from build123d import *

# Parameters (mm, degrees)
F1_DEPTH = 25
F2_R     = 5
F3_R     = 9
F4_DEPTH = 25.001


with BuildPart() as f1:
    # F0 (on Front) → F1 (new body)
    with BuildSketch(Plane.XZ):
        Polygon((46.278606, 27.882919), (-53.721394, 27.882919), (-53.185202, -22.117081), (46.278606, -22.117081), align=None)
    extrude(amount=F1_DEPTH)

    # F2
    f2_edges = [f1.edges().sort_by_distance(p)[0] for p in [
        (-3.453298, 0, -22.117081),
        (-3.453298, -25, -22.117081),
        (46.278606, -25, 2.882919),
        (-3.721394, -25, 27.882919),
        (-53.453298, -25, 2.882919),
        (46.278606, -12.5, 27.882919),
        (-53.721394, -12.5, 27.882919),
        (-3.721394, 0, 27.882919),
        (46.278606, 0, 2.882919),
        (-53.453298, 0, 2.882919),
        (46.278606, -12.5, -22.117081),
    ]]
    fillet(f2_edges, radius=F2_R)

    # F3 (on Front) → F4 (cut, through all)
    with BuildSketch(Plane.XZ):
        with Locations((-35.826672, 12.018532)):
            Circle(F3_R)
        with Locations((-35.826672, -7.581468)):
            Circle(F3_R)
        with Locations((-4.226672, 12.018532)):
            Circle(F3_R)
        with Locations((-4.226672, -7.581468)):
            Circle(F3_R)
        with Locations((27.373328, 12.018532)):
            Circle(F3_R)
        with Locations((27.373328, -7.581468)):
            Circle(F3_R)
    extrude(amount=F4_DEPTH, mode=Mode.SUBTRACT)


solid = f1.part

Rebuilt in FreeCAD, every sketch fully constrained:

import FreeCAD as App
import Part
import Sketcher

V = App.Vector
Q = App.Units.Quantity


def edges_at(feature, points):
    """Names of the edges that pass closest to the given points."""
    edges = feature.Shape.Edges
    near = lambda p: min(range(len(edges)), key=lambda i: edges[i].distToShape(Part.Vertex(*p))[0])
    return sorted({f"Edge{near(p) + 1}" for p in points})

doc = App.newDocument("Part")
body = doc.addObject("PartDesign::Body", "Body")

# Sketch on XZ plane
sketch1 = body.newObject("Sketcher::SketchObject", "Sketch")
sketch1.AttachmentSupport = (doc.getObject("XZ_Plane"), [""])
sketch1.MapMode = "FlatFace"
sketch1.addGeometry([
    Part.LineSegment(V(46, 28, 0), V(-54, 28, 0)),
    Part.LineSegment(V(-54, 28, 0), V(-53, -22, 0)),
    Part.LineSegment(V(-53, -22, 0), V(46, -22, 0)),
    Part.LineSegment(V(46, -22, 0), V(46, 28, 0)),
], False)
sketch1.addConstraint([
    Sketcher.Constraint("Coincident", 0, 2, 1, 1),
    Sketcher.Constraint("Coincident", 1, 2, 2, 1),
    Sketcher.Constraint("Coincident", 2, 2, 3, 1),
    Sketcher.Constraint("Coincident", 3, 2, 0, 1),
    Sketcher.Constraint("Horizontal", 0),
    Sketcher.Constraint("Horizontal", 2),
    Sketcher.Constraint("Vertical", 3),
    Sketcher.Constraint("DistanceX", 0, 2, 0, 1, Q("100 mm")),
    Sketcher.Constraint("DistanceY", 3, 1, 3, 2, Q("50 mm")),
    Sketcher.Constraint("DistanceX", 2, 1, 2, 2, Q("99.463808 mm")),
    Sketcher.Constraint("DistanceX", 1, 2, -1, 1, Q("53.185202 mm")),
    Sketcher.Constraint("DistanceY", -1, 1, 0, 2, Q("27.882919 mm")),
])
pad1 = body.newObject("PartDesign::Pad", "Pad")
pad1.Profile = sketch1
pad1.Length = 25
doc.recompute()

fillet = body.newObject("PartDesign::Fillet", "Fillet")
fillet.Base = (pad1, edges_at(pad1, [
    (-3.453, 0, -22.117),
    (-3.453, -25, -22.117),
    (46.279, -25, 2.883),
    (-3.721, -25, 27.883),
    (-53.453, -25, 2.883),
    (46.279, -12.5, 27.883),
    (-53.721, -12.5, 27.883),
    (-3.721, 0, 27.883),
    (46.279, 0, 2.883),
    (-53.453, 0, 2.883),
    (46.279, -12.5, -22.117),
]))
fillet.Radius = 5

# Sketch on XZ plane
sketch2 = body.newObject("Sketcher::SketchObject", "Sketch001")
sketch2.AttachmentSupport = (doc.getObject("XZ_Plane"), [""])
sketch2.MapMode = "FlatFace"
sketch2.addGeometry([
    Part.Circle(V(-36, 12, 0), V(0, 0, 1), 9),  # 0
    Part.Circle(V(-36, -8, 0), V(0, 0, 1), 9),  # 1
    Part.Circle(V(-4, 12, 0), V(0, 0, 1), 9),  # 2
    Part.Circle(V(-4, -8, 0), V(0, 0, 1), 9),  # 3
    Part.Circle(V(27, 12, 0), V(0, 0, 1), 9),  # 4
    Part.Circle(V(27, -8, 0), V(0, 0, 1), 9),  # 5
], False)
sketch2.addConstraint([
    Sketcher.Constraint("Equal", 0, 1),
    Sketcher.Constraint("Equal", 1, 2),
    Sketcher.Constraint("Equal", 2, 3),
    Sketcher.Constraint("Equal", 3, 4),
    Sketcher.Constraint("Equal", 4, 5),
    Sketcher.Constraint("Horizontal", 0, 3, 2, 3),
    Sketcher.Constraint("Horizontal", 1, 3, 3, 3),
    Sketcher.Constraint("Horizontal", 2, 3, 4, 3),
    Sketcher.Constraint("Horizontal", 3, 3, 5, 3),
    Sketcher.Constraint("Vertical", 0, 3, 1, 3),
    Sketcher.Constraint("Vertical", 2, 3, 3, 3),
    Sketcher.Constraint("Vertical", 4, 3, 5, 3),
    Sketcher.Constraint("Diameter", 0, Q("18 mm")),
    Sketcher.Constraint("DistanceY", 1, 3, 0, 3, Q("19.6 mm")),
    Sketcher.Constraint("DistanceX", 0, 3, 2, 3, Q("31.6 mm")),
    Sketcher.Constraint("DistanceX", 2, 3, 4, 3, Q("31.6 mm")),
    Sketcher.Constraint("DistanceX", 2, 3, -1, 1, Q("4.226672 mm")),
    Sketcher.Constraint("DistanceY", -1, 1, 0, 3, Q("12.018532 mm")),
])
pocket1 = body.newObject("PartDesign::Pocket", "Pocket")
pocket1.Profile = sketch2
pocket1.Type = "ThroughAll"
pocket1.Reversed = True

doc.recompute()
